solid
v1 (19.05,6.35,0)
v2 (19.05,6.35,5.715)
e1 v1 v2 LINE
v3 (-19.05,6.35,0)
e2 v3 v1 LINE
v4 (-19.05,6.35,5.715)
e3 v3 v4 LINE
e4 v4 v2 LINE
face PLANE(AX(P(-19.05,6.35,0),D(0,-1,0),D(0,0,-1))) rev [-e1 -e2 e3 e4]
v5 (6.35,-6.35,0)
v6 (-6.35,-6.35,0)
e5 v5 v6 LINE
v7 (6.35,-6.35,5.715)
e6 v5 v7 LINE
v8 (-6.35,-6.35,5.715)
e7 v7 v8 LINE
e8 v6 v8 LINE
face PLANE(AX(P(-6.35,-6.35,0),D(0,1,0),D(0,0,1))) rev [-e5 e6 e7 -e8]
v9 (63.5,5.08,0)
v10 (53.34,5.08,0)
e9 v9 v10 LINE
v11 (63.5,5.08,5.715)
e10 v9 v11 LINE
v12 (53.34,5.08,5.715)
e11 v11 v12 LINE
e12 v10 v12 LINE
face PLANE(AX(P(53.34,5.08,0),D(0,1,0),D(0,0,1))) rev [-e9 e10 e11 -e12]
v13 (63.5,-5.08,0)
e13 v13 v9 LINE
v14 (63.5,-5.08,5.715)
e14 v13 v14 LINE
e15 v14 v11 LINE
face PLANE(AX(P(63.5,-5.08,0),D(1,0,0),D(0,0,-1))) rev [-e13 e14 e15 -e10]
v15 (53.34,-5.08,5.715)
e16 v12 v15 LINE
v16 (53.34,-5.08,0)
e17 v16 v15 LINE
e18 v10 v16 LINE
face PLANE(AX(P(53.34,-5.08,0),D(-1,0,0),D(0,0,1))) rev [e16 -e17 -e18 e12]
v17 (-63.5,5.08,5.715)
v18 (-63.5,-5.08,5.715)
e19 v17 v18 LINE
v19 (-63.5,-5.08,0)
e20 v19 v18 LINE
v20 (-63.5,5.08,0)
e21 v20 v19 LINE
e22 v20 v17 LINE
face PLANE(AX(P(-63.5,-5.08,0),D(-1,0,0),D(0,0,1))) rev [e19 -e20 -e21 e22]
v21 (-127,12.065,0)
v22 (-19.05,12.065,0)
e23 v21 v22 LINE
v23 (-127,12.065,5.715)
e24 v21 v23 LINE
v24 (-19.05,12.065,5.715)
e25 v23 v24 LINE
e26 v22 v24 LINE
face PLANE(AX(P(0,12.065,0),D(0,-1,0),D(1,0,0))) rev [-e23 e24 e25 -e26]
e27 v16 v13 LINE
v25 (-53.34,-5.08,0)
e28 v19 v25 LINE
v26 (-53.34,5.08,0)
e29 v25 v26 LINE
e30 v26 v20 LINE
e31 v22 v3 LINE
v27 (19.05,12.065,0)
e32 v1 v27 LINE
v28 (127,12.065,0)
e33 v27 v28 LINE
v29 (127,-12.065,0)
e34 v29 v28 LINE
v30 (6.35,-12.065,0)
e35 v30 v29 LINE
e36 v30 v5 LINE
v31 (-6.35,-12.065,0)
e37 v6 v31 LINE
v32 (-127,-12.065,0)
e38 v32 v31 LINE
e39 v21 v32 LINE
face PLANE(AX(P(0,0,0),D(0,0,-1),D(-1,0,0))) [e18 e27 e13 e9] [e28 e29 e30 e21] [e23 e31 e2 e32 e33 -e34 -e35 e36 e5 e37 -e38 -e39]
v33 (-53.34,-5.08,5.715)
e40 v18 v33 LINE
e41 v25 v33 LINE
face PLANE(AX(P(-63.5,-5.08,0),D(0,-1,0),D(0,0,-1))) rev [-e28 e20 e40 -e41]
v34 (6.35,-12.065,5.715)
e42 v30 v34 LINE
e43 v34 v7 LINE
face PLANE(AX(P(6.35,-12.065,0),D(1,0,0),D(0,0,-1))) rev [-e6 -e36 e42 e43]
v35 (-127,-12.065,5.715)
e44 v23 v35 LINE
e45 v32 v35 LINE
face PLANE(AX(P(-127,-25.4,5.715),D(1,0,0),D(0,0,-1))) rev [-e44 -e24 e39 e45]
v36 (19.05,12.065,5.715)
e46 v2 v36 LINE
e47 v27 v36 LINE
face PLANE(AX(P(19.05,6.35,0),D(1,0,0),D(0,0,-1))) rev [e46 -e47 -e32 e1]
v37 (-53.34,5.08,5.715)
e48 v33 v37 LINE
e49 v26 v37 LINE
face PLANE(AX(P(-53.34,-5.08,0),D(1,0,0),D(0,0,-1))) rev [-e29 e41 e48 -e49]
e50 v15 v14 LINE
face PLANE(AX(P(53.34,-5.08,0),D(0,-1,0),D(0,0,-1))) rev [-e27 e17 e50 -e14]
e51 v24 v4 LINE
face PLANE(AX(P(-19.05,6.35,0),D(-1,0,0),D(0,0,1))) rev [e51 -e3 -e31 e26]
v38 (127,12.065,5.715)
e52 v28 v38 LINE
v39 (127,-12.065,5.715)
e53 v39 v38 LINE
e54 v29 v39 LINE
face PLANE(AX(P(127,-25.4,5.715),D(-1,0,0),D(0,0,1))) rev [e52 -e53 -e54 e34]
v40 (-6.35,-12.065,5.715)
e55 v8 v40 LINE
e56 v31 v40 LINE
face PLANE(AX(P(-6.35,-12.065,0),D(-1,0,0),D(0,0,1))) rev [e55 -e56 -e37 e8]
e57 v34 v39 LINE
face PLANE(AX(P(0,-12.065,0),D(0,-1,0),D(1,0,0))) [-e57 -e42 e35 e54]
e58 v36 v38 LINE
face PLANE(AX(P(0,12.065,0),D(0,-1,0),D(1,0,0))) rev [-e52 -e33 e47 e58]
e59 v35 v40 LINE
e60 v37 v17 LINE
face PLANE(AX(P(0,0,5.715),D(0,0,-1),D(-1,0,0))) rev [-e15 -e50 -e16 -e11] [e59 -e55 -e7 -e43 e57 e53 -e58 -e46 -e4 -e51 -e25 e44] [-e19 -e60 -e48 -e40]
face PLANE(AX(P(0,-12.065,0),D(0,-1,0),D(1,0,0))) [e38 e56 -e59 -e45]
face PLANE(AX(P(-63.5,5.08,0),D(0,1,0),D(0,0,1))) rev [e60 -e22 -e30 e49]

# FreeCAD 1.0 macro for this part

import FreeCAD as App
import Part
import Sketcher

V = App.Vector
Q = App.Units.Quantity


def add_polygon(sketch, points):
    """Adds a closed chain of lines whose ends are joined by coincident constraints."""
    first, n = sketch.GeometryCount, len(points)
    for a, b in zip(points, points[1:] + points[:1]):
        sketch.addGeometry(Part.LineSegment(App.Vector(*a, 0), App.Vector(*b, 0)), False)
    for i in range(n):
        sketch.addConstraint(Sketcher.Constraint("Coincident", first + i, 2, first + (i + 1) % n, 1))

doc = App.newDocument("Part")
body = doc.addObject("PartDesign::Body", "Body")

sketch1 = body.newObject("Sketcher::SketchObject", "Sketch")
sketch1.AttachmentSupport = (doc.getObject("XY_Plane"), [""])
sketch1.MapMode = "FlatFace"
add_polygon(sketch1, [(-127, 25), (-127, -25), (127, -25), (127, 25)])
sketch1.addConstraint([
    Sketcher.Constraint("Vertical", 0),
    Sketcher.Constraint("Horizontal", 1),
    Sketcher.Constraint("Vertical", 2),
    Sketcher.Constraint("Horizontal", 3),
    Sketcher.Constraint("Symmetric", 0, 2, 2, 2, -1, 1),
    Sketcher.Constraint("DistanceX", 1, 1, 1, 2, Q("10 in")),
    Sketcher.Constraint("DistanceY", 0, 2, 0, 1, Q("2 in")),
])
pad1 = body.newObject("PartDesign::Pad", "Pad")
pad1.Profile = sketch1
pad1.Length = Q("0.225 in")

sketch2 = body.newObject("Sketcher::SketchObject", "Sketch001")
sketch2.AttachmentSupport = (doc.getObject("XY_Plane"), [""])
sketch2.MapMode = "FlatFace"
sketch2.AttachmentOffset = App.Placement(V(0, 0, 0.225 * 25.4), App.Rotation())
add_polygon(sketch2, [(-64, 5), (-64, -5), (-53, -5), (-53, 5)])
add_polygon(sketch2, [(53, 5), (53, -5), (64, -5), (64, 5)])
add_polygon(sketch2, [(-6, -6), (-6, -12), (6, -12), (6, -6)])
add_polygon(sketch2, [(-19, 12), (-19, 6), (19, 6), (19, 12)])
sketch2.addConstraint([
    Sketcher.Constraint("Vertical", 0),
    Sketcher.Constraint("Horizontal", 1),
    Sketcher.Constraint("Vertical", 2),
    Sketcher.Constraint("Horizontal", 3),
    Sketcher.Constraint("Vertical", 4),
    Sketcher.Constraint("Horizontal", 5),
    Sketcher.Constraint("Vertical", 6),
    Sketcher.Constraint("Horizontal", 7),
    Sketcher.Constraint("Vertical", 8),
    Sketcher.Constraint("Horizontal", 9),
    Sketcher.Constraint("Vertical", 10),
    Sketcher.Constraint("Horizontal", 11),
    Sketcher.Constraint("Vertical", 12),
    Sketcher.Constraint("Horizontal", 13),
    Sketcher.Constraint("Vertical", 14),
    Sketcher.Constraint("Horizontal", 15),
    Sketcher.Constraint("Symmetric", 2, 2, 4, 2, -1, 1),
    Sketcher.Constraint("Symmetric", 0, 2, 6, 2, -1, 1),
    Sketcher.Constraint("Horizontal", 1, 2, 4, 2),
    Sketcher.Constraint("Equal", 7, 0),
    Sketcher.Constraint("Equal", 10, 12),
    Sketcher.Constraint("DistanceX", 1, 1, 1, 2, Q("0.4 in")),
    Sketcher.Constraint("DistanceX", 9, 1, 9, 2, Q("0.5 in")),
    Sketcher.Constraint("DistanceX", 13, 1, 13, 2, Q("1.5 in")),
    Sketcher.Constraint("DistanceX", 0, 2, 5, 2, Q("5 in")),
    Sketcher.Constraint("DistanceX", 12, 2, 10, 2, Q("1 in")),
    Sketcher.Constraint("DistanceY", 11, 2, 12, 2, Q("0.5 in")),
    Sketcher.Constraint("DistanceY", 8, 2, 8, 1, Q("0.225 in")),
    Sketcher.Constraint("DistanceX", 8, 2, -1, 1, Q("0.25 in")),
    Sketcher.Constraint("DistanceY", 10, 2, -1, 1, Q("0.25 in")),
])
pocket1 = body.newObject("PartDesign::Pocket", "Pocket")
pocket1.Profile = sketch2
pocket1.Type = "ThroughAll"

sketch3 = body.newObject("Sketcher::SketchObject", "Sketch002")
sketch3.AttachmentSupport = (doc.getObject("XY_Plane"), [""])
sketch3.MapMode = "FlatFace"
sketch3.AttachmentOffset = App.Placement(V(0, 0, 0.225 * 25.4), App.Rotation())
add_polygon(sketch3, [(-127, 25), (-127, 12), (127, 12), (127, 25)])
add_polygon(sketch3, [(-127, -12), (-127, -25), (127, -25), (127, -12)])
sketch3.addConstraint([
    Sketcher.Constraint("Vertical", 0),
    Sketcher.Constraint("Horizontal", 1),
    Sketcher.Constraint("Vertical", 2),
    Sketcher.Constraint("Horizontal", 3),
    Sketcher.Constraint("Vertical", 4),
    Sketcher.Constraint("Horizontal", 5),
    Sketcher.Constraint("Vertical", 6),
    Sketcher.Constraint("Horizontal", 7),
    Sketcher.Constraint("Symmetric", 2, 2, 4, 2, -1, 1),
    Sketcher.Constraint("Symmetric", 0, 2, 6, 2, -1, 1),
    Sketcher.Constraint("Vertical", 3, 2, 4, 2),
    Sketcher.Constraint("DistanceX", 1, 1, 1, 2, Q("10 in")),
    Sketcher.Constraint("DistanceY", -1, 1, 2, 2, Q("1 in")),
    Sketcher.Constraint("DistanceY", 0, 2, 0, 1, Q("0.525 in")),
])
pocket2 = body.newObject("PartDesign::Pocket", "Pocket001")
pocket2.Profile = sketch3
pocket2.Type = "ThroughAll"

doc.recompute()
